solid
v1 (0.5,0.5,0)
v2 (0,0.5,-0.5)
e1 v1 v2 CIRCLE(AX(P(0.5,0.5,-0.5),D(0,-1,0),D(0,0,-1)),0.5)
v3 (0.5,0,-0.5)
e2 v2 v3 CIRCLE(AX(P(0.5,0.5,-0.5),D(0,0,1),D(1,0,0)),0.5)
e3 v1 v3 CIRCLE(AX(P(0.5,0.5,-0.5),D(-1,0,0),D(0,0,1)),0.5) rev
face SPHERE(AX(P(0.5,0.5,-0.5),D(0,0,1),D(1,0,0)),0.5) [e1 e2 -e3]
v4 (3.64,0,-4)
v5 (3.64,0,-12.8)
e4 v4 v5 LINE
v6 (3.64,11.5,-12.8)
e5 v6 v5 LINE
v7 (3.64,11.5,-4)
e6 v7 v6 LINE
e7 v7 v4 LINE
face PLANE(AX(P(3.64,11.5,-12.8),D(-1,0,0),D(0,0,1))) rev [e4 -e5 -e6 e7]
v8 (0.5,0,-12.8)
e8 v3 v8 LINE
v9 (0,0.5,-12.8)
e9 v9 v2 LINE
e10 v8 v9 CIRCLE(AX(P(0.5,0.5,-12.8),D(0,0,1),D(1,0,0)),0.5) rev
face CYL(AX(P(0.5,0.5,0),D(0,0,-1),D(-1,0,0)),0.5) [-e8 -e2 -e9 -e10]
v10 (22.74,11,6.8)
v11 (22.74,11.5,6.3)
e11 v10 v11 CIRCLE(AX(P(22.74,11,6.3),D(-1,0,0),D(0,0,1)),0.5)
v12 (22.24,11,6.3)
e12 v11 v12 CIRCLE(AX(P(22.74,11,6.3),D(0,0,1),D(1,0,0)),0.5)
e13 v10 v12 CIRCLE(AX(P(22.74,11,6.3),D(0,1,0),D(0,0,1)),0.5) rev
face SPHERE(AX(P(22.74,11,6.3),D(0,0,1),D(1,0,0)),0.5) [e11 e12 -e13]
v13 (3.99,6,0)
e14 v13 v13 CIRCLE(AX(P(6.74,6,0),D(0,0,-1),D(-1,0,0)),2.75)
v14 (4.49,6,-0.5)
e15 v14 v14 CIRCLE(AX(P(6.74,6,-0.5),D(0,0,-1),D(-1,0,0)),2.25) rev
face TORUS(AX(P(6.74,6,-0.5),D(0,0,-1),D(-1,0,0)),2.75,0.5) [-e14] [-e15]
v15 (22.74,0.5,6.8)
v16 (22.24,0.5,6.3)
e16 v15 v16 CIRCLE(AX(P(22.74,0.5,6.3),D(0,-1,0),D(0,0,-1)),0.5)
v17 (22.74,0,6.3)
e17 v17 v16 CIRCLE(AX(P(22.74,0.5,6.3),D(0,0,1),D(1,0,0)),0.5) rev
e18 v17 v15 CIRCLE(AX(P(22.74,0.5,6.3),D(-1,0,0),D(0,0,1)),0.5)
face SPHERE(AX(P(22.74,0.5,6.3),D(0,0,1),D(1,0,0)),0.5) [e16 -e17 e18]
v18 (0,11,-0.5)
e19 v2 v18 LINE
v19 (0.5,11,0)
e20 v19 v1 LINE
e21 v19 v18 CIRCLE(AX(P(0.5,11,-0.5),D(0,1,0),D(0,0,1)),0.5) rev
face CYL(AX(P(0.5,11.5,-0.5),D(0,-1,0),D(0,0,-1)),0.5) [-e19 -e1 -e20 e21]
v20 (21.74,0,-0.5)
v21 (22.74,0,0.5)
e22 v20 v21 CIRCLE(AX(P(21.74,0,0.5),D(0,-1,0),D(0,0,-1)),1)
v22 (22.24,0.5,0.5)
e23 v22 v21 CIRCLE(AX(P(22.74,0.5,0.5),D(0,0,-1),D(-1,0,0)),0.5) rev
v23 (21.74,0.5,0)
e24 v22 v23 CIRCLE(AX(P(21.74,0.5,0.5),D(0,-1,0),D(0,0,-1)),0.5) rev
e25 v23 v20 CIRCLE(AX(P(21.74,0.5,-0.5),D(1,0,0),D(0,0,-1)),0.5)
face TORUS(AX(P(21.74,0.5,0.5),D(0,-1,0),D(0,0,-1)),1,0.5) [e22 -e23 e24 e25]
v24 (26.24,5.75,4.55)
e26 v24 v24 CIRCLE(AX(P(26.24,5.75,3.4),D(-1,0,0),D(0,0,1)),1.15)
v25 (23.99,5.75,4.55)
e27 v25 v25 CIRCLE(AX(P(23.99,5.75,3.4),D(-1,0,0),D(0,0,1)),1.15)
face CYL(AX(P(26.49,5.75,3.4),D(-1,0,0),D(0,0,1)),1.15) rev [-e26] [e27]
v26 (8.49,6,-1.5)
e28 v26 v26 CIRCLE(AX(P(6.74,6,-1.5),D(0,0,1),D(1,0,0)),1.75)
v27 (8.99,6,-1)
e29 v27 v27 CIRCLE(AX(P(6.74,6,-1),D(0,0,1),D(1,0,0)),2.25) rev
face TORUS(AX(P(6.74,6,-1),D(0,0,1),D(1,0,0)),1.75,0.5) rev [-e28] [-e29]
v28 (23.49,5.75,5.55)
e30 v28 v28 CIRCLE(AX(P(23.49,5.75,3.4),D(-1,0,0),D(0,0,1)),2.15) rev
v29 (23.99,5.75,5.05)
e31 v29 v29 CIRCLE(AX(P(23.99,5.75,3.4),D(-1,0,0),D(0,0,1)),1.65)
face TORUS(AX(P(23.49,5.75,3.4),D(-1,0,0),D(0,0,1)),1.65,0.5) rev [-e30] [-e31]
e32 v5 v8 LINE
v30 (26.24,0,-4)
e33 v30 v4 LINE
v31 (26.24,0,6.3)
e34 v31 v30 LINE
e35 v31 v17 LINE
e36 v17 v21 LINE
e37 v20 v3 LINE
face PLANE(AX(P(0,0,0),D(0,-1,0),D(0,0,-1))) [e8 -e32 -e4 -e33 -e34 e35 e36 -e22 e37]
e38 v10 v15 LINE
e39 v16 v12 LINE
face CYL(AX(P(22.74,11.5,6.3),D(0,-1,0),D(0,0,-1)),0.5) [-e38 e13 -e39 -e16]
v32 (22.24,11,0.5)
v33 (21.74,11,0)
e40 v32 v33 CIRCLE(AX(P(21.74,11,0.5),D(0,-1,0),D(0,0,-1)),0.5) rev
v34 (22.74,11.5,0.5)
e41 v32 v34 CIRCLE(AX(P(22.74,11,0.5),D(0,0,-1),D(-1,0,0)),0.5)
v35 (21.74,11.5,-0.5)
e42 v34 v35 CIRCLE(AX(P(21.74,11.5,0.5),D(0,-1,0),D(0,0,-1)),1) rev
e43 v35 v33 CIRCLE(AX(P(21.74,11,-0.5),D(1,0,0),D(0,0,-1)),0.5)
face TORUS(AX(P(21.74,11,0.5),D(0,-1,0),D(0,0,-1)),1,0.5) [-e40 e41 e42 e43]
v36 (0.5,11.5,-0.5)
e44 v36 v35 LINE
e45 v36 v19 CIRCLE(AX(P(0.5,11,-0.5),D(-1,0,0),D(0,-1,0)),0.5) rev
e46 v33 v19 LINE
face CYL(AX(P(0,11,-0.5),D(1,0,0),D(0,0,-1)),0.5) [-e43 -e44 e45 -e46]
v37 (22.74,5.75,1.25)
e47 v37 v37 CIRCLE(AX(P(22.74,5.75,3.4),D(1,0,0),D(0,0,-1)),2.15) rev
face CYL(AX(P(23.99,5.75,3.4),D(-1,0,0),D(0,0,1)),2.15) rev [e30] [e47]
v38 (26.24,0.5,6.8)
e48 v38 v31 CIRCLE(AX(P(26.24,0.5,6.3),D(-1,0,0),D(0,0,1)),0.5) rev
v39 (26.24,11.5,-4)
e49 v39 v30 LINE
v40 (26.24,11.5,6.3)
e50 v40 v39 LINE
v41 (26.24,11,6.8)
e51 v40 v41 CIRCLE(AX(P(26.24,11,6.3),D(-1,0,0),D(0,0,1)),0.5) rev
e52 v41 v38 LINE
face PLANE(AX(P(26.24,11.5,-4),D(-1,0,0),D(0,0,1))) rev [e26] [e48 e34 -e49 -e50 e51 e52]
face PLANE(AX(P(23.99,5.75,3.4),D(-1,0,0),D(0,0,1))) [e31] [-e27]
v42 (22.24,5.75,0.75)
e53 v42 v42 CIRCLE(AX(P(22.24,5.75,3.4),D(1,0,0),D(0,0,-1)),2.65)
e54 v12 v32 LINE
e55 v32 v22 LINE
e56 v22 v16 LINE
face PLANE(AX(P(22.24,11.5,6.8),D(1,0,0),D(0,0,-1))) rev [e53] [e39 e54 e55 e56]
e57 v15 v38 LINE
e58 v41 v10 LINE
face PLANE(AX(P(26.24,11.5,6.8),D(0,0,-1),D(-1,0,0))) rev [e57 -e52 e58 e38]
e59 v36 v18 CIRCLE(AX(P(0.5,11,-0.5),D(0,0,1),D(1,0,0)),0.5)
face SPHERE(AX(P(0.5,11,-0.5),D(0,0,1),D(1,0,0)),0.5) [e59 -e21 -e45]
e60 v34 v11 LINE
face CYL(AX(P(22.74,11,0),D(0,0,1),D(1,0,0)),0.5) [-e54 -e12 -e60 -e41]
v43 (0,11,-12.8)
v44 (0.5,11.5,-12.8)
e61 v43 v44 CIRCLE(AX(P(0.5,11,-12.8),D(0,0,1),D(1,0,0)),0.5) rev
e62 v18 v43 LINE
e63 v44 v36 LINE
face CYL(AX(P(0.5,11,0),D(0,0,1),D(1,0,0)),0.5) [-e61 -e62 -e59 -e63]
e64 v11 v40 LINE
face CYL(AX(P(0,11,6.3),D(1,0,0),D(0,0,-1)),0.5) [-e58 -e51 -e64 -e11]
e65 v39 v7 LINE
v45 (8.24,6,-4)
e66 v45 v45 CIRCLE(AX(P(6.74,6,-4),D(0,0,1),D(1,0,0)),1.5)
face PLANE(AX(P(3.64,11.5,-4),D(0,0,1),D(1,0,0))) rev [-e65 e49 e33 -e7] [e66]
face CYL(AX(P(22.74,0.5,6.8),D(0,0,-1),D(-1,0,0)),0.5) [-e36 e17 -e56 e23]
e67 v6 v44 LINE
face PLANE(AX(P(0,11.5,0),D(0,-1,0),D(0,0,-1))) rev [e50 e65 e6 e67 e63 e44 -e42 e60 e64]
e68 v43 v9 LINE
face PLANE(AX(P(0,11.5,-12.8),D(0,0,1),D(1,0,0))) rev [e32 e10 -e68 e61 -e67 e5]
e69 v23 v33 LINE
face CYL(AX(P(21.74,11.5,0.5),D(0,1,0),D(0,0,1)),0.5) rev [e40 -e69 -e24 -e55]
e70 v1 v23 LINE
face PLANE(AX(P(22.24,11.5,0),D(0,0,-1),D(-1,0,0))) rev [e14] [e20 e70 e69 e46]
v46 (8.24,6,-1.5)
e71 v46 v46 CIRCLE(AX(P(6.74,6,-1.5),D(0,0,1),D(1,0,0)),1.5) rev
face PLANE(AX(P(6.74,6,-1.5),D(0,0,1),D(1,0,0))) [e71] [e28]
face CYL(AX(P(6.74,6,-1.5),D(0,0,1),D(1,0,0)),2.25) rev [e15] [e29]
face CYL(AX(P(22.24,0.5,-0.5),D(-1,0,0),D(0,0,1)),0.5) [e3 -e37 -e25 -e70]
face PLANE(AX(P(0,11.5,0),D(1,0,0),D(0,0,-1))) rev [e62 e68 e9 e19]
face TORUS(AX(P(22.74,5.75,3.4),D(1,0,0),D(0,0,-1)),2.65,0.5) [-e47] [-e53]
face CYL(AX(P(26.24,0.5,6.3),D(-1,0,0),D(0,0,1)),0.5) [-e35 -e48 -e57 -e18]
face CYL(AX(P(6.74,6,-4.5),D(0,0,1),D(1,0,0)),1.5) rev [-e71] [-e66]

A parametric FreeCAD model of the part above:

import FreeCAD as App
import Part
import Sketcher


def edges_at(feature, points):
    """Names of the edges that pass closest to the given points."""
    edges = feature.Shape.Edges
    near = lambda p: min(range(len(edges)), key=lambda i: edges[i].distToShape(Part.Vertex(*p))[0])
    return sorted({f"Edge{near(p) + 1}" for p in points})

doc = App.newDocument("Part")
params = doc.addObject("Spreadsheet::Sheet", "Params")
for row, (alias, value) in enumerate([
    ("sketch1_width", "4 mm"),
    ("sketch1_width2", "22.6 mm"),
    ("sketch1_height", "12.8 mm"),
    ("sketch1_height2", "6.8 mm"),
    ("sketch1_height3", "10.8 mm"),
    ("pad1_length", "11.5 mm"),
    ("sketch2_diameter", "3 mm"),
    ("pocket1_length", "4.5 mm"),
    ("sketch3_diameter", "4.5 mm"),
    ("pocket2_length", "1.5 mm"),
    ("sketch4_diameter", "4.3 mm"),
    ("pocket3_length", "1.75 mm"),
    ("sketch5_diameter", "2.3 mm"),
    ("pocket4_length", "2.5 mm"),
    ("fillet_radius", "0.5 mm"),
    ("fillet2_radius", "0.5 mm"),
    ("fillet3_radius", "0.5 mm"),
], start=1):
    params.set(f"A{row}", alias)
    params.set(f"B{row}", "=" + value)
    params.setAlias(f"B{row}", alias)

body = doc.addObject("PartDesign::Body", "Body")

sketch1 = body.newObject("Sketcher::SketchObject", "Sketch")
sketch1.AttachmentSupport = (doc.getObject("XZ_Plane"), [""])
sketch1.MapMode = "FlatFace"
sketch1.addGeometry([
    Part.LineSegment(App.Vector(0, -12.8, 0), App.Vector(0, 0, 0)),
    Part.LineSegment(App.Vector(0, 0, 0), App.Vector(22.2, 0, 0)),
    Part.LineSegment(App.Vector(22.2, 0, 0), App.Vector(22.2, 6.8, 0)),
    Part.LineSegment(App.Vector(22.2, 6.8, 0), App.Vector(26.2, 6.8, 0)),
    Part.LineSegment(App.Vector(26.2, 6.8, 0), App.Vector(26.2, -4, 0)),
    Part.LineSegment(App.Vector(26.2, -4, 0), App.Vector(3.6, -4, 0)),
    Part.LineSegment(App.Vector(3.6, -4, 0), App.Vector(3.6, -12.8, 0)),
    Part.LineSegment(App.Vector(3.6, -12.8, 0), App.Vector(0, -12.8, 0)),
], False)
sketch1.addConstraint([
    Sketcher.Constraint("Coincident", 0, 2, 1, 1),
    Sketcher.Constraint("Coincident", 1, 2, 2, 1),
    Sketcher.Constraint("Coincident", 2, 2, 3, 1),
    Sketcher.Constraint("Coincident", 3, 2, 4, 1),
    Sketcher.Constraint("Coincident", 4, 2, 5, 1),
    Sketcher.Constraint("Coincident", 5, 2, 6, 1),
    Sketcher.Constraint("Coincident", 6, 2, 7, 1),
    Sketcher.Constraint("Coincident", 7, 2, 0, 1),
    Sketcher.Constraint("Vertical", 0),
    Sketcher.Constraint("Horizontal", 1),
    Sketcher.Constraint("Vertical", 2),
    Sketcher.Constraint("Horizontal", 3),
    Sketcher.Constraint("Vertical", 4),
    Sketcher.Constraint("Horizontal", 5),
    Sketcher.Constraint("Vertical", 6),
    Sketcher.Constraint("Horizontal", 7),
    Sketcher.Constraint("Coincident", 0, 2, -1, 1),
    Sketcher.Constraint("DistanceX", 3, 1, 3, 2, 4.0),
    Sketcher.Constraint("DistanceX", 5, 2, 5, 1, 22.6),
    Sketcher.Constraint("DistanceY", 0, 1, 0, 2, 12.8),
    Sketcher.Constraint("DistanceY", 2, 1, 2, 2, 6.8),
    Sketcher.Constraint("DistanceY", 4, 2, 4, 1, 10.8),
    Sketcher.Constraint("DistanceX", 1, 1, 1, 2, 22.24),
])
sketch1.setExpression("Constraints[17]", "Params.sketch1_width")
sketch1.setExpression("Constraints[18]", "Params.sketch1_width2")
sketch1.setExpression("Constraints[19]", "Params.sketch1_height")
sketch1.setExpression("Constraints[20]", "Params.sketch1_height2")
sketch1.setExpression("Constraints[21]", "Params.sketch1_height3")
pad1 = body.newObject("PartDesign::Pad", "Pad")
pad1.Profile = sketch1
pad1.setExpression("Length", "Params.pad1_length")
pad1.Reversed = True

sketch2 = body.newObject("Sketcher::SketchObject", "Sketch001")
sketch2.AttachmentSupport = (doc.getObject("XY_Plane"), [""])
sketch2.MapMode = "FlatFace"
sketch2.addGeometry(Part.Circle(App.Vector(6.7, 6, 0), App.Vector(0, 0, 1), 1.5), False)
sketch2.addConstraint([
    Sketcher.Constraint("Diameter", 0, 3.0),
    Sketcher.Constraint("DistanceY", -1, 1, 0, 3, 6.0),
    Sketcher.Constraint("DistanceX", -1, 1, 0, 3, 6.74),
])
sketch2.setExpression("Constraints[0]", "Params.sketch2_diameter")
pocket1 = body.newObject("PartDesign::Pocket", "Pocket")
pocket1.Profile = sketch2
pocket1.setExpression("Length", "Params.pocket1_length")

sketch3 = body.newObject("Sketcher::SketchObject", "Sketch002")
sketch3.AttachmentSupport = (doc.getObject("XY_Plane"), [""])
sketch3.MapMode = "FlatFace"
sketch3.addGeometry(Part.Circle(App.Vector(6.7, 6, 0), App.Vector(0, 0, 1), 2.2), False)
sketch3.addConstraint([
    Sketcher.Constraint("Diameter", 0, 4.5),
    Sketcher.Constraint("DistanceY", -1, 1, 0, 3, 6.0),
    Sketcher.Constraint("DistanceX", -1, 1, 0, 3, 6.74),
])
sketch3.setExpression("Constraints[0]", "Params.sketch3_diameter")
pocket2 = body.newObject("PartDesign::Pocket", "Pocket001")
pocket2.Profile = sketch3
pocket2.setExpression("Length", "Params.pocket2_length")

sketch4 = body.newObject("Sketcher::SketchObject", "Sketch003")
sketch4.AttachmentSupport = (doc.getObject("YZ_Plane"), [""])
sketch4.MapMode = "FlatFace"
sketch4.AttachmentOffset = App.Placement(App.Vector(0, 0, 22.24), App.Rotation())
sketch4.addGeometry(Part.Circle(App.Vector(5.8, 3.4, 0), App.Vector(0, 0, 1), 2.1), False)
sketch4.addConstraint([
    Sketcher.Constraint("Diameter", 0, 4.3),
    Sketcher.Constraint("DistanceY", -1, 1, 0, 3, 3.4),
    Sketcher.Constraint("DistanceX", -1, 1, 0, 3, 5.75),
])
sketch4.setExpression("Constraints[0]", "Params.sketch4_diameter")
pocket3 = body.newObject("PartDesign::Pocket", "Pocket002")
pocket3.Profile = sketch4
pocket3.setExpression("Length", "Params.pocket3_length")
pocket3.Reversed = True

sketch5 = body.newObject("Sketcher::SketchObject", "Sketch004")
sketch5.AttachmentSupport = (doc.getObject("YZ_Plane"), [""])
sketch5.MapMode = "FlatFace"
sketch5.AttachmentOffset = App.Placement(App.Vector(0, 0, 23.99), App.Rotation())
sketch5.addGeometry(Part.Circle(App.Vector(5.8, 3.4, 0), App.Vector(0, 0, 1), 1.1), False)
sketch5.addConstraint([
    Sketcher.Constraint("Diameter", 0, 2.3),
    Sketcher.Constraint("DistanceY", -1, 1, 0, 3, 3.4),
    Sketcher.Constraint("DistanceX", -1, 1, 0, 3, 5.75),
])
sketch5.setExpression("Constraints[0]", "Params.sketch5_diameter")
pocket4 = body.newObject("PartDesign::Pocket", "Pocket003")
pocket4.Profile = sketch5
pocket4.setExpression("Length", "Params.pocket4_length")
pocket4.Reversed = True
doc.recompute()

fillet = body.newObject("PartDesign::Fillet", "Fillet")
fillet.Base = (pocket4, edges_at(pocket4, [(4.49, 6, 0), (4.49, 6, -1.5)]))
fillet.setExpression("Radius", "Params.fillet_radius")
doc.recompute()

fillet2 = body.newObject("PartDesign::Fillet", "Fillet001")
fillet2.Base = (fillet, edges_at(fillet, [(23.99, 5.75, 1.25), (22.24, 5.75, 1.25)]))
fillet2.setExpression("Radius", "Params.fillet2_radius")
doc.recompute()

fillet3 = body.newObject("PartDesign::Fillet", "Fillet002")
fillet3.Base = (fillet2, edges_at(fillet2, [
    (24.24, 11.5, 6.8),
    (22.24, 0, 3.4),
    (11.12, 0, 0),
    (0, 5.75, 0),
    (22.24, 5.75, 6.8),
    (22.24, 5.75, 0),
    (0, 11.5, -6.4),
    (11.12, 11.5, 0),
    (22.24, 11.5, 3.4),
    (0, 0, -6.4),
    (24.24, 0, 6.8),
]))
fillet3.setExpression("Radius", "Params.fillet3_radius")

doc.recompute()
